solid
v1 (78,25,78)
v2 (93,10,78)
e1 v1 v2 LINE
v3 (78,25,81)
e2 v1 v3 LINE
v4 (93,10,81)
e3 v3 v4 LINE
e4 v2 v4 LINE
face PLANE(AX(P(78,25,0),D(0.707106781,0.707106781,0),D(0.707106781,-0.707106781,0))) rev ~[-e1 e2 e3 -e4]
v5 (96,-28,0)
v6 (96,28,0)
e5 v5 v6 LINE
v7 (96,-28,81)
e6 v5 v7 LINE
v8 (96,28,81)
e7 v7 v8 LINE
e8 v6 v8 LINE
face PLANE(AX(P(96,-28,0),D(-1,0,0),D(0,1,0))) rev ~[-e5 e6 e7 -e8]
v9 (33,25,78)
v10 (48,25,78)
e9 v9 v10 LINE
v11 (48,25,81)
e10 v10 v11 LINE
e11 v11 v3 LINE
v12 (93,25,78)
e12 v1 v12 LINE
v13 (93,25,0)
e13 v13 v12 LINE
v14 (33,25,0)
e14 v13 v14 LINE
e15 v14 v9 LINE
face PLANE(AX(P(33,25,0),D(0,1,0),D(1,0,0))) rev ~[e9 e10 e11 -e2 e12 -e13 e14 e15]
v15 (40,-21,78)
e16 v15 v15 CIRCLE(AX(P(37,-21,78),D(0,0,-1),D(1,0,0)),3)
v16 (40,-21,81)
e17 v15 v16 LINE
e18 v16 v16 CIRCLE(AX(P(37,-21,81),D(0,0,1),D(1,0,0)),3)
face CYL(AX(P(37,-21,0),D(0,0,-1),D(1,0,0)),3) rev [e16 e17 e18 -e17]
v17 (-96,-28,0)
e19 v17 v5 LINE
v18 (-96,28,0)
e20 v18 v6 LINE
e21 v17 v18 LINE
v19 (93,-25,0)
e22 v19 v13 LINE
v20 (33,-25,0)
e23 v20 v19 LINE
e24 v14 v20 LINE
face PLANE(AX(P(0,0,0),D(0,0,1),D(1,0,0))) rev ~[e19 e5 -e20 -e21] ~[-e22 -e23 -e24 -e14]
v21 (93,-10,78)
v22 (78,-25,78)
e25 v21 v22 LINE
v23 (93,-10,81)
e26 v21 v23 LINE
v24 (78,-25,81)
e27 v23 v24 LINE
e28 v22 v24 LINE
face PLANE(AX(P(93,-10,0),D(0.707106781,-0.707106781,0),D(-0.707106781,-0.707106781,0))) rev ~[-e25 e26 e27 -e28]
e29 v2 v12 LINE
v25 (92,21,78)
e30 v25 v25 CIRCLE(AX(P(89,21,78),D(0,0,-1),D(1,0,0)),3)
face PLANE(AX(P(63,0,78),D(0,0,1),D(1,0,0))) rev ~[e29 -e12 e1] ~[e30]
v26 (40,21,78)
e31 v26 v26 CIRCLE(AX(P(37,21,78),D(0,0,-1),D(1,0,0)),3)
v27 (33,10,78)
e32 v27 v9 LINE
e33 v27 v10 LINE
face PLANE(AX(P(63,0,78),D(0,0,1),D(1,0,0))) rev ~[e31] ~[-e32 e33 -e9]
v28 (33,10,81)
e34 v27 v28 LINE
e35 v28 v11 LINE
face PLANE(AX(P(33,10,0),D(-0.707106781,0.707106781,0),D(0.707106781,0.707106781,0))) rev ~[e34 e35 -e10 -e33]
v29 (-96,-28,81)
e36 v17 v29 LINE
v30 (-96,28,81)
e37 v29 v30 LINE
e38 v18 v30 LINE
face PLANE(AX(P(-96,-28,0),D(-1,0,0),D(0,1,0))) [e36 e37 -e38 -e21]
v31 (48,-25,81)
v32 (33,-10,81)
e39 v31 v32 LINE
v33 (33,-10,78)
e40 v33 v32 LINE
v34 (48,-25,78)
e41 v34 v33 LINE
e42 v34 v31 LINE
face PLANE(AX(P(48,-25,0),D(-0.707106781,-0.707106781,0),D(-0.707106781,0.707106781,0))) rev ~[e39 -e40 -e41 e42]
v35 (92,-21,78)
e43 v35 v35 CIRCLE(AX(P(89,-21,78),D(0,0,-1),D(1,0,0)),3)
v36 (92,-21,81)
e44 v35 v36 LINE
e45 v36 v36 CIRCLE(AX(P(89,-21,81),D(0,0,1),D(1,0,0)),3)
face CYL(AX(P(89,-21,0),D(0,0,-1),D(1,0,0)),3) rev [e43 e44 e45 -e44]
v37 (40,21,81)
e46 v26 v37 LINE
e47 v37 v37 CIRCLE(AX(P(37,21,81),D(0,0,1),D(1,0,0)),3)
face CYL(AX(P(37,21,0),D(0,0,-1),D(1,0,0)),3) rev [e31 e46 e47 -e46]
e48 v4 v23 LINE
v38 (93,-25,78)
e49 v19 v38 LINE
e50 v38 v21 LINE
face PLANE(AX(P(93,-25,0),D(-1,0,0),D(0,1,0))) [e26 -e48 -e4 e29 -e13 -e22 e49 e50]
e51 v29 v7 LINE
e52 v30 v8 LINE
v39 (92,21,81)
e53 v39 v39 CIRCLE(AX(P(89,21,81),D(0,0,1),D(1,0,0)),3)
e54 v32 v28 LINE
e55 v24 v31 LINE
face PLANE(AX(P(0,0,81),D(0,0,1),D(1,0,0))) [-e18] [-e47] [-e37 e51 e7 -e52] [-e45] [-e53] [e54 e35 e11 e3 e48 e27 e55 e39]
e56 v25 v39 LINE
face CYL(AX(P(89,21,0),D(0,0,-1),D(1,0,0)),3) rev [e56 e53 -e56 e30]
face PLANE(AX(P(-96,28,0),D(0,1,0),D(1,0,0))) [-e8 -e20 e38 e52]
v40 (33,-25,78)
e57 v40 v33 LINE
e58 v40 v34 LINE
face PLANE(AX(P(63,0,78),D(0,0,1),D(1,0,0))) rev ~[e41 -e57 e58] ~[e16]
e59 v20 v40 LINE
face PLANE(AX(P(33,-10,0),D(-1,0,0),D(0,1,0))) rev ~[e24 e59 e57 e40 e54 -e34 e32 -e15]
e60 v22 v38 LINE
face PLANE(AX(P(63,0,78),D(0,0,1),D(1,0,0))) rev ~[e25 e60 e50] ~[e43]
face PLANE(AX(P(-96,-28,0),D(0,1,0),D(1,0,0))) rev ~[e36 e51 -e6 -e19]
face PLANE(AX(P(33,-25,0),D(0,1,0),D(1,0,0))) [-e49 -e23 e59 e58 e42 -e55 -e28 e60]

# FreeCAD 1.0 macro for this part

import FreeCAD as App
import Part
import Sketcher
from FreeCAD import Vector
Q = App.Units.Quantity


def add_polygon(sketch, points):
    """Adds a closed chain of lines whose ends are joined by coincident constraints."""
    first, n = sketch.GeometryCount, len(points)
    for a, b in zip(points, points[1:] + points[:1]):
        sketch.addGeometry(Part.LineSegment(App.Vector(*a, 0), App.Vector(*b, 0)), False)
    for i in range(n):
        sketch.addConstraint(Sketcher.Constraint("Coincident", first + i, 2, first + (i + 1) % n, 1))

doc = App.newDocument("Part")
params = doc.addObject("Spreadsheet::Sheet", "Params")
for row, (alias, value) in enumerate([
    ("sketch1_width", "192 mm"),
    ("sketch1_height", "56 mm"),
    ("pad1_length", "81 mm"),
    ("sketch2_diameter", "6 mm"),
    ("sketch2_width", "30 mm"),
    ("sketch2_height", "20 mm"),
    ("pocket1_length", "81 mm"),
    ("sketch3_width", "60 mm"),
    ("sketch3_height", "50 mm"),
    ("pocket2_length", "78 mm"),
], start=1):
    params.set(f"A{row}", alias)
    params.set(f"B{row}", "=" + value)
    params.setAlias(f"B{row}", alias)

body = doc.addObject("PartDesign::Body", "Body")

# Sketch on XY plane
sketch1 = body.newObject("Sketcher::SketchObject", "Sketch")
sketch1.AttachmentSupport = (doc.getObject("XY_Plane"), [""])
sketch1.MapMode = "FlatFace"
add_polygon(sketch1, [(-96, 28), (-96, -28), (96, -28), (96, 28)])  # lines 0-3
sketch1.addConstraint([
    Sketcher.Constraint("Vertical", 0),
    Sketcher.Constraint("Horizontal", 1),
    Sketcher.Constraint("Vertical", 2),
    Sketcher.Constraint("Horizontal", 3),
    Sketcher.Constraint("Symmetric", 0, 2, 2, 2, -1, 1),
    Sketcher.Constraint("DistanceX", 1, 1, 1, 2, Q("192 mm")),
    Sketcher.Constraint("DistanceY", 0, 2, 0, 1, Q("56 mm")),
])
sketch1.setExpression("Constraints[9]", "Params.sketch1_width")
sketch1.setExpression("Constraints[10]", "Params.sketch1_height")
pad1 = body.newObject("PartDesign::Pad", "Pad")
pad1.Profile = sketch1
pad1.setExpression("Length", "Params.pad1_length")

# Sketch on XY plane
sketch2 = body.newObject("Sketcher::SketchObject", "Sketch001")
sketch2.AttachmentSupport = (doc.getObject("XY_Plane"), [""])
sketch2.MapMode = "FlatFace"
sketch2.addGeometry(Part.Circle(Vector(37, 21, 0), Vector(0, 0, 1), 3), False)  # 0
sketch2.addGeometry(Part.Circle(Vector(89, 21, 0), Vector(0, 0, 1), 3), False)  # 1
sketch2.addGeometry(Part.Circle(Vector(89, -21, 0), Vector(0, 0, 1), 3), False)  # 2
sketch2.addGeometry(Part.Circle(Vector(37, -21, 0), Vector(0, 0, 1), 3), False)  # 3
add_polygon(sketch2, [(78, 25), (48, 25), (33, 10), (33, -10), (48, -25), (78, -25), (93, -10), (93, 10)])  # lines 4-11
sketch2.addConstraint([
    Sketcher.Constraint("Horizontal", 4),
    Sketcher.Constraint("Vertical", 6),
    Sketcher.Constraint("Horizontal", 8),
    Sketcher.Constraint("Vertical", 10),
    Sketcher.Constraint("Equal", 0, 1),
    Sketcher.Constraint("Equal", 1, 2),
    Sketcher.Constraint("Equal", 2, 3),
    Sketcher.Constraint("Symmetric", 1, 3, 2, 3, -1),
    Sketcher.Constraint("Symmetric", 0, 3, 3, 3, -1),
    Sketcher.Constraint("Symmetric", 4, 2, 7, 2, -1),
    Sketcher.Constraint("Perpendicular", 5, 7),
    Sketcher.Constraint("Perpendicular", 7, 9),
    Sketcher.Constraint("Perpendicular", 9, 11),
    Sketcher.Constraint("Horizontal", 0, 3, 1, 3),
    Sketcher.Constraint("Horizontal", 6, 2, 9, 2),
    Sketcher.Constraint("Horizontal", 5, 2, 10, 2),
    Sketcher.Constraint("Vertical", 8, 2, 11, 2),
    Sketcher.Constraint("Diameter", 0, Q("6 mm")),
    Sketcher.Constraint("DistanceX", 4, 2, 4, 1, Q("30 mm")),
    Sketcher.Constraint("DistanceY", 6, 2, 6, 1, Q("20 mm")),
    Sketcher.Constraint("DistanceX", -1, 1, 0, 3, Q("37 mm")),
    Sketcher.Constraint("DistanceY", -1, 1, 0, 3, Q("21 mm")),
    Sketcher.Constraint("DistanceX", -1, 1, 1, 3, Q("89 mm")),
    Sketcher.Constraint("DistanceX", -1, 1, 4, 2, Q("48 mm")),
    Sketcher.Constraint("DistanceY", -1, 1, 4, 2, Q("25 mm")),
])
sketch2.setExpression("Constraints[25]", "Params.sketch2_diameter")
sketch2.setExpression("Constraints[26]", "Params.sketch2_width")
sketch2.setExpression("Constraints[27]", "Params.sketch2_height")
pocket1 = body.newObject("PartDesign::Pocket", "Pocket")
pocket1.Profile = sketch2
pocket1.setExpression("Length", "Params.pocket1_length")
pocket1.Reversed = True

# Sketch on XY plane
sketch3 = body.newObject("Sketcher::SketchObject", "Sketch002")
sketch3.AttachmentSupport = (doc.getObject("XY_Plane"), [""])
sketch3.MapMode = "FlatFace"
add_polygon(sketch3, [(33, 25), (33, -25), (93, -25), (93, 25)])  # lines 0-3
sketch3.addConstraint([
    Sketcher.Constraint("Vertical", 0),
    Sketcher.Constraint("Horizontal", 1),
    Sketcher.Constraint("Vertical", 2),
    Sketcher.Constraint("Horizontal", 3),
    Sketcher.Constraint("DistanceX", 1, 1, 1, 2, Q("60 mm")),
    Sketcher.Constraint("DistanceY", 0, 2, 0, 1, Q("50 mm")),
    Sketcher.Constraint("DistanceX", -1, 1, 0, 2, Q("33 mm")),
    Sketcher.Constraint("DistanceY", 0, 2, -1, 1, Q("25 mm")),
])
sketch3.setExpression("Constraints[8]", "Params.sketch3_width")
sketch3.setExpression("Constraints[9]", "Params.sketch3_height")
pocket2 = body.newObject("PartDesign::Pocket", "Pocket001")
pocket2.Profile = sketch3
pocket2.setExpression("Length", "Params.pocket2_length")
pocket2.Reversed = True

doc.recompute()
